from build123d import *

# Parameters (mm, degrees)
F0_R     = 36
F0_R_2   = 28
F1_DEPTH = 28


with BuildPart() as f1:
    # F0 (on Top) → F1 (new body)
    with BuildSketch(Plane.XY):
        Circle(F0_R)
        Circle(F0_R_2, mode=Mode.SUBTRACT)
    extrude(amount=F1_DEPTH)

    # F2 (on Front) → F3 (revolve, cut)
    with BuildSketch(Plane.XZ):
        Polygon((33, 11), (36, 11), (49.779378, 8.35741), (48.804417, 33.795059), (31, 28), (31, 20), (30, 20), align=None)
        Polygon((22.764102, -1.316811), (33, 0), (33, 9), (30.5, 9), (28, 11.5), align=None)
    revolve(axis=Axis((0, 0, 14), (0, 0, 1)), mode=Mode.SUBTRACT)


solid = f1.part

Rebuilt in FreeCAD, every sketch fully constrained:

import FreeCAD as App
import Part
import Sketcher
Q = App.Units.Quantity

doc = App.newDocument("Part")
body = doc.addObject("PartDesign::Body", "Body")

sketch1 = body.newObject("Sketcher::SketchObject", "Sketch")
sketch1.AttachmentSupport = (doc.getObject("XY_Plane"), [""])
sketch1.MapMode = "FlatFace"
sketch1.addGeometry([
    Part.Circle(App.Vector(0, 0, 0), App.Vector(0, 0, 1), 36),
    Part.Circle(App.Vector(0, 0, 0), App.Vector(0, 0, 1), 28),
], False)
sketch1.addConstraint([
    Sketcher.Constraint("Coincident", 0, 3, -1, 1),
    Sketcher.Constraint("Coincident", 1, 3, -1, 1),
    Sketcher.Constraint("Diameter", 0, Q("72 mm")),
    Sketcher.Constraint("Diameter", 1, Q("56 mm")),
])
pad1 = body.newObject("PartDesign::Pad", "Pad")
pad1.Profile = sketch1
pad1.Length = 28

sketch2 = body.newObject("Sketcher::SketchObject", "Sketch001")
sketch2.AttachmentSupport = (doc.getObject("XZ_Plane"), [""])
sketch2.MapMode = "FlatFace"
sketch2.addGeometry([
    Part.LineSegment(App.Vector(33, 11, 0), App.Vector(36, 11, 0)),
    Part.LineSegment(App.Vector(36, 11, 0), App.Vector(49.8, 8.4, 0)),
    Part.LineSegment(App.Vector(49.8, 8.4, 0), App.Vector(48.8, 33.8, 0)),
    Part.LineSegment(App.Vector(48.8, 33.8, 0), App.Vector(31, 28, 0)),
    Part.LineSegment(App.Vector(31, 28, 0), App.Vector(31, 20, 0)),
    Part.LineSegment(App.Vector(31, 20, 0), App.Vector(30, 20, 0)),
    Part.LineSegment(App.Vector(30, 20, 0), App.Vector(33, 11, 0)),
    Part.LineSegment(App.Vector(22.8, -1.3, 0), App.Vector(33, 0, 0)),
    Part.LineSegment(App.Vector(33, 0, 0), App.Vector(33, 9, 0)),
    Part.LineSegment(App.Vector(33, 9, 0), App.Vector(30.5, 9, 0)),
    Part.LineSegment(App.Vector(30.5, 9, 0), App.Vector(28, 11.5, 0)),
    Part.LineSegment(App.Vector(28, 11.5, 0), App.Vector(22.8, -1.3, 0)),
], False)
sketch2.addConstraint([
    Sketcher.Constraint("Coincident", 0, 2, 1, 1),
    Sketcher.Constraint("Coincident", 1, 2, 2, 1),
    Sketcher.Constraint("Coincident", 2, 2, 3, 1),
    Sketcher.Constraint("Coincident", 3, 2, 4, 1),
    Sketcher.Constraint("Coincident", 4, 2, 5, 1),
    Sketcher.Constraint("Coincident", 5, 2, 6, 1),
    Sketcher.Constraint("Coincident", 6, 2, 0, 1),
    Sketcher.Constraint("Coincident", 7, 2, 8, 1),
    Sketcher.Constraint("Coincident", 8, 2, 9, 1),
    Sketcher.Constraint("Coincident", 9, 2, 10, 1),
    Sketcher.Constraint("Coincident", 10, 2, 11, 1),
    Sketcher.Constraint("Coincident", 11, 2, 7, 1),
    Sketcher.Constraint("Horizontal", 0),
    Sketcher.Constraint("Vertical", 4),
    Sketcher.Constraint("Horizontal", 5),
    Sketcher.Constraint("Vertical", 8),
    Sketcher.Constraint("Horizontal", 9),
    Sketcher.Constraint("PointOnObject", 7, 2, -1),
    Sketcher.Constraint("Vertical", 6, 2, 7, 2),
    Sketcher.Constraint("DistanceX", 0, 1, 0, 2, Q("3 mm")),
    Sketcher.Constraint("DistanceX", 5, 2, 5, 1, Q("1 mm")),
    Sketcher.Constraint("DistanceY", 4, 2, 4, 1, Q("8 mm")),
    Sketcher.Constraint("DistanceY", 8, 1, 8, 2, Q("9 mm")),
    Sketcher.Constraint("Angle", 10, Q("135 deg")),
    Sketcher.Constraint("DistanceX", 9, 2, 9, 1, Q("2.5 mm")),
    Sketcher.Constraint("DistanceX", -1, 1, 0, 2, Q("36 mm")),
    Sketcher.Constraint("DistanceY", -1, 1, 0, 2, Q("11 mm")),
    Sketcher.Constraint("DistanceX", -1, 1, 3, 2, Q("31 mm")),
    Sketcher.Constraint("DistanceY", -1, 1, 3, 2, Q("28 mm")),
    Sketcher.Constraint("DistanceX", -1, 1, 10, 2, Q("28 mm")),
    Sketcher.Constraint("Distance", 3, Q("18.723781 mm")),
    Sketcher.Constraint("Distance", 7, Q("10.320252 mm")),
    Sketcher.Constraint("DistanceY", -1, 1, 1, 2, Q("8.35741 mm")),
    Sketcher.Constraint("DistanceY", -1, 1, 2, 2, Q("33.795059 mm")),
    Sketcher.Constraint("DistanceY", 11, 2, -1, 1, Q("1.316811 mm")),
    Sketcher.Constraint("DistanceX", 0, 2, 1, 2, Q("13.779378 mm")),
])
groove = body.newObject("PartDesign::Groove", "Groove")
groove.Profile = sketch2
groove.ReferenceAxis = (sketch2, ["V_Axis"])
groove.Angle = 360

doc.recompute()
